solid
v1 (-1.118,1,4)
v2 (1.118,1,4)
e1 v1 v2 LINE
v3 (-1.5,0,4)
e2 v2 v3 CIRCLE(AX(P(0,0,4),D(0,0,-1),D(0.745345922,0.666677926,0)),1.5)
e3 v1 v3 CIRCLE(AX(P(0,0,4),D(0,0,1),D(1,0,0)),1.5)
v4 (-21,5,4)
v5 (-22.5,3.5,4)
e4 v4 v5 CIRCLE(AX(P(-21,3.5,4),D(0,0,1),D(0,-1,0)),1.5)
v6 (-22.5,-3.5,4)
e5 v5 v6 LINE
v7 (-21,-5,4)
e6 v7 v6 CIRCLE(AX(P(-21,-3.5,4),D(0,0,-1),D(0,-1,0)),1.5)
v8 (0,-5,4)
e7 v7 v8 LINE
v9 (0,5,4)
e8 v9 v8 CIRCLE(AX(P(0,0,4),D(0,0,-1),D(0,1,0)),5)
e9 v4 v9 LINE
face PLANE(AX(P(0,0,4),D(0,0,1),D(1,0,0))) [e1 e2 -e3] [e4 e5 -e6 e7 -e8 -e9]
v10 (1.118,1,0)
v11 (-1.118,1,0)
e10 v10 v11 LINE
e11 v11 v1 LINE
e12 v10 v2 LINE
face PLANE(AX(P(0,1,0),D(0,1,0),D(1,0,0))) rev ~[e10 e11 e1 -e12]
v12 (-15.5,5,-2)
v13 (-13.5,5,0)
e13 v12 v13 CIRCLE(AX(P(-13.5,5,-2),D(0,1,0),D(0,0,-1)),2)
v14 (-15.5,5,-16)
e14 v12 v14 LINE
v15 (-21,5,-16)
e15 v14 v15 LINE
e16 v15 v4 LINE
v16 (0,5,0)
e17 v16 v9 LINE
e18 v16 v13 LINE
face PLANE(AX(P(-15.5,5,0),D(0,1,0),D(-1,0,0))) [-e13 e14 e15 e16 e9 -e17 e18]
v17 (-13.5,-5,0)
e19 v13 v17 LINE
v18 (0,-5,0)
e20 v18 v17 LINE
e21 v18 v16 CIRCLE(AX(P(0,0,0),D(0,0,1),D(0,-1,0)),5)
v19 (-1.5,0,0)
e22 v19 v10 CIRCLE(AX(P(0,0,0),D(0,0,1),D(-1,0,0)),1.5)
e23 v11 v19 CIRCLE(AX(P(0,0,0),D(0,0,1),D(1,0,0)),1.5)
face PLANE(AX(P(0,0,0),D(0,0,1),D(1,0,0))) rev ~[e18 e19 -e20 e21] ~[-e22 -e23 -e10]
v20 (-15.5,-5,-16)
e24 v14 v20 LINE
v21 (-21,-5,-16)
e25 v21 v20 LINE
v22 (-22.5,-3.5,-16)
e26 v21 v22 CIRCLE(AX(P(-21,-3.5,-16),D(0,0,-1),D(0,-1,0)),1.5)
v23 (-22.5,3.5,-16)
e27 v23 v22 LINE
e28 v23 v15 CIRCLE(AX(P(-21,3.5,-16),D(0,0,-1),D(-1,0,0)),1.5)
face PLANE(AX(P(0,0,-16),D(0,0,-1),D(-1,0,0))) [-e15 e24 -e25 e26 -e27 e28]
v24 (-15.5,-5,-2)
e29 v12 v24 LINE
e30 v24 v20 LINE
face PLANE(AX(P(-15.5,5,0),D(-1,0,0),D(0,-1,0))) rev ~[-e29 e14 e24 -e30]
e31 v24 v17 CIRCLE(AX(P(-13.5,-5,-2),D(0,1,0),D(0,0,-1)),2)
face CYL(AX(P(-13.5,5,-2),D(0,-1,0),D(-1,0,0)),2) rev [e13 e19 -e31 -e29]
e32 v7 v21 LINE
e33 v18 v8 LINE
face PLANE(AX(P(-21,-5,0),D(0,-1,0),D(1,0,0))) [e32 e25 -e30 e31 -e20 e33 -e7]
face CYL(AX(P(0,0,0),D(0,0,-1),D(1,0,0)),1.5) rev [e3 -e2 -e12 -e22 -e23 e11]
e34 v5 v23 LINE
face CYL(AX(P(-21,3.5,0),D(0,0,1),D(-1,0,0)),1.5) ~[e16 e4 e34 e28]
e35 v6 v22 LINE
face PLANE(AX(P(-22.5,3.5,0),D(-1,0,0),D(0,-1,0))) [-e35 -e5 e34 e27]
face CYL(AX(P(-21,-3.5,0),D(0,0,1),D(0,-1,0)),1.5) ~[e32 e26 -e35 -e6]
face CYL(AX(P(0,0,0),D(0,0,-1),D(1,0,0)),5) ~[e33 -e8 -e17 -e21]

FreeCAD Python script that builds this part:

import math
import FreeCAD as App
import Part
import Sketcher

V = App.Vector


def edges_at(feature, points):
    """Names of the edges that pass closest to the given points."""
    edges = feature.Shape.Edges
    near = lambda p: min(range(len(edges)), key=lambda i: edges[i].distToShape(Part.Vertex(*p))[0])
    return sorted({f"Edge{near(p) + 1}" for p in points})

doc = App.newDocument("Part")
params = doc.addObject("Spreadsheet::Sheet", "Params")
for row, (alias, value) in enumerate([
    ("sketch1_radius", "1.5 mm"),
    ("sketch1_radius2", "5 mm"),
    ("sketch1_width", "22.5 mm"),
    ("pad1_length", "4 mm"),
    ("fillet_radius", "1.5 mm"),
    ("sketch2_height", "7 mm"),
    ("sketch2_radius", "1.5 mm"),
    ("pad2_length", "16 mm"),
    ("fillet2_radius", "2 mm"),
], start=1):
    params.set(f"A{row}", alias)
    params.set(f"B{row}", "=" + value)
    params.setAlias(f"B{row}", alias)

body = doc.addObject("PartDesign::Body", "Body")

# Sketch on XY plane
sketch1 = doc.addObject("Sketcher::SketchObject", "Sketch")
body.addObject(sketch1)
sketch1.AttachmentSupport = (doc.XY_Plane, [""])
sketch1.MapMode = "FlatFace"
sketch1.addGeometry(Part.LineSegment(V(0, 5, 0), V(-22.5, 5, 0)), False)
sketch1.addGeometry(Part.LineSegment(V(-22.5, 5, 0), V(-22.5, -5, 0)), False)
sketch1.addGeometry(Part.LineSegment(V(-22.5, -5, 0), V(0, -5, 0)), False)
sketch1.addGeometry(Part.ArcOfCircle(Part.Circle(V(0, 0, 0), V(0, 0, 1), 5), math.radians(-90), math.radians(90)), False)
sketch1.addGeometry(Part.ArcOfCircle(Part.Circle(V(0, 0, 0), V(0, 0, 1), 1.5), math.radians(180), math.radians(402)), False)
sketch1.addGeometry(Part.ArcOfCircle(Part.Circle(V(0, 0, 0), V(0, 0, 1), 1.5), math.radians(138), math.radians(180)), False)
sketch1.addGeometry(Part.LineSegment(V(-1.1, 1, 0), V(1.1, 1, 0)), False)
sketch1.addConstraint(Sketcher.Constraint("Coincident", 0, 2, 1, 1))
sketch1.addConstraint(Sketcher.Constraint("Coincident", 1, 2, 2, 1))
sketch1.addConstraint(Sketcher.Constraint("Tangent", 2, 2, 3, 1))
sketch1.addConstraint(Sketcher.Constraint("Tangent", 3, 2, 0, 1))
sketch1.addConstraint(Sketcher.Constraint("Tangent", 4, 1, 5, 2))
sketch1.addConstraint(Sketcher.Constraint("Coincident", 5, 1, 6, 1))
sketch1.addConstraint(Sketcher.Constraint("Coincident", 6, 2, 4, 2))
sketch1.addConstraint(Sketcher.Constraint("Horizontal", 0))
sketch1.addConstraint(Sketcher.Constraint("Vertical", 1))
sketch1.addConstraint(Sketcher.Constraint("Horizontal", 2))
sketch1.addConstraint(Sketcher.Constraint("Horizontal", 6))
sketch1.addConstraint(Sketcher.Constraint("Coincident", 3, 3, -1, 1))
sketch1.addConstraint(Sketcher.Constraint("Coincident", 4, 3, -1, 1))
sketch1.addConstraint(Sketcher.Constraint("Equal", 4, 5))
sketch1.addConstraint(Sketcher.Constraint("PointOnObject", 4, 1, -1))
sketch1.addConstraint(Sketcher.Constraint("Radius", 4, 1.5))
sketch1.addConstraint(Sketcher.Constraint("Radius", 3, 5.0))
sketch1.addConstraint(Sketcher.Constraint("DistanceX", 0, 2, 0, 1, 22.5))
sketch1.addConstraint(Sketcher.Constraint("DistanceY", -1, 1, 5, 1, 1.0))
sketch1.setExpression("Constraints[15]", "Params.sketch1_radius")
sketch1.setExpression("Constraints[16]", "Params.sketch1_radius2")
sketch1.setExpression("Constraints[17]", "Params.sketch1_width")
pad1 = doc.addObject("PartDesign::Pad", "Pad")
body.addObject(pad1)
pad1.Profile = sketch1
pad1.setExpression("Length", "Params.pad1_length")
doc.recompute()

fillet = doc.addObject("PartDesign::Fillet", "Fillet")
body.addObject(fillet)
fillet.Base = (pad1, edges_at(pad1, [(-22.5, 5, 2), (-22.5, -5, 2)]))
fillet.setExpression("Radius", "Params.fillet_radius")

# Sketch on XY plane
sketch2 = doc.addObject("Sketcher::SketchObject", "Sketch001")
body.addObject(sketch2)
sketch2.AttachmentSupport = (doc.XY_Plane, [""])
sketch2.MapMode = "FlatFace"
sketch2.addGeometry(Part.LineSegment(V(-15.5, -5, 0), V(-21, -5, 0)), False)
sketch2.addGeometry(Part.ArcOfCircle(Part.Circle(V(-21, -3.5, 0), V(0, 0, 1), 1.5), math.radians(180), math.radians(270)), False)
sketch2.addGeometry(Part.LineSegment(V(-22.5, -3.5, 0), V(-22.5, 3.5, 0)), False)
sketch2.addGeometry(Part.ArcOfCircle(Part.Circle(V(-21, 3.5, 0), V(0, 0, 1), 1.5), math.radians(90), math.radians(180)), False)
sketch2.addGeometry(Part.LineSegment(V(-21, 5, 0), V(-15.5, 5, 0)), False)
sketch2.addGeometry(Part.LineSegment(V(-15.5, 5, 0), V(-15.5, -5, 0)), False)
sketch2.addConstraint(Sketcher.Constraint("Tangent", 0, 2, 1, 2))
sketch2.addConstraint(Sketcher.Constraint("Tangent", 1, 1, 2, 1))
sketch2.addConstraint(Sketcher.Constraint("Tangent", 2, 2, 3, 2))
sketch2.addConstraint(Sketcher.Constraint("Tangent", 3, 1, 4, 1))
sketch2.addConstraint(Sketcher.Constraint("Coincident", 4, 2, 5, 1))
sketch2.addConstraint(Sketcher.Constraint("Coincident", 5, 2, 0, 1))
sketch2.addConstraint(Sketcher.Constraint("Horizontal", 0))
sketch2.addConstraint(Sketcher.Constraint("Vertical", 2))
sketch2.addConstraint(Sketcher.Constraint("Horizontal", 4))
sketch2.addConstraint(Sketcher.Constraint("Vertical", 5))
sketch2.addConstraint(Sketcher.Constraint("Equal", 1, 3))
sketch2.addConstraint(Sketcher.Constraint("DistanceY", 2, 1, 2, 2, 7.0))
sketch2.addConstraint(Sketcher.Constraint("DistanceX", 2, 2, 4, 2, 7.0))
sketch2.addConstraint(Sketcher.Constraint("Radius", 1, 1.5))
sketch2.addConstraint(Sketcher.Constraint("DistanceX", 1, 3, -1, 1, 21.0))
sketch2.addConstraint(Sketcher.Constraint("DistanceY", 0, 2, -1, 1, 5.0))
sketch2.setExpression("Constraints[11]", "Params.sketch2_height")
sketch2.setExpression("Constraints[13]", "Params.sketch2_radius")
pad2 = doc.addObject("PartDesign::Pad", "Pad001")
body.addObject(pad2)
pad2.Profile = sketch2
pad2.setExpression("Length", "Params.pad2_length")
pad2.Reversed = True
doc.recompute()

fillet2 = doc.addObject("PartDesign::Fillet", "Fillet001")
body.addObject(fillet2)
fillet2.Base = (pad2, edges_at(pad2, [(-15.5, 0, 0)]))
fillet2.setExpression("Radius", "Params.fillet2_radius")

doc.recompute()
